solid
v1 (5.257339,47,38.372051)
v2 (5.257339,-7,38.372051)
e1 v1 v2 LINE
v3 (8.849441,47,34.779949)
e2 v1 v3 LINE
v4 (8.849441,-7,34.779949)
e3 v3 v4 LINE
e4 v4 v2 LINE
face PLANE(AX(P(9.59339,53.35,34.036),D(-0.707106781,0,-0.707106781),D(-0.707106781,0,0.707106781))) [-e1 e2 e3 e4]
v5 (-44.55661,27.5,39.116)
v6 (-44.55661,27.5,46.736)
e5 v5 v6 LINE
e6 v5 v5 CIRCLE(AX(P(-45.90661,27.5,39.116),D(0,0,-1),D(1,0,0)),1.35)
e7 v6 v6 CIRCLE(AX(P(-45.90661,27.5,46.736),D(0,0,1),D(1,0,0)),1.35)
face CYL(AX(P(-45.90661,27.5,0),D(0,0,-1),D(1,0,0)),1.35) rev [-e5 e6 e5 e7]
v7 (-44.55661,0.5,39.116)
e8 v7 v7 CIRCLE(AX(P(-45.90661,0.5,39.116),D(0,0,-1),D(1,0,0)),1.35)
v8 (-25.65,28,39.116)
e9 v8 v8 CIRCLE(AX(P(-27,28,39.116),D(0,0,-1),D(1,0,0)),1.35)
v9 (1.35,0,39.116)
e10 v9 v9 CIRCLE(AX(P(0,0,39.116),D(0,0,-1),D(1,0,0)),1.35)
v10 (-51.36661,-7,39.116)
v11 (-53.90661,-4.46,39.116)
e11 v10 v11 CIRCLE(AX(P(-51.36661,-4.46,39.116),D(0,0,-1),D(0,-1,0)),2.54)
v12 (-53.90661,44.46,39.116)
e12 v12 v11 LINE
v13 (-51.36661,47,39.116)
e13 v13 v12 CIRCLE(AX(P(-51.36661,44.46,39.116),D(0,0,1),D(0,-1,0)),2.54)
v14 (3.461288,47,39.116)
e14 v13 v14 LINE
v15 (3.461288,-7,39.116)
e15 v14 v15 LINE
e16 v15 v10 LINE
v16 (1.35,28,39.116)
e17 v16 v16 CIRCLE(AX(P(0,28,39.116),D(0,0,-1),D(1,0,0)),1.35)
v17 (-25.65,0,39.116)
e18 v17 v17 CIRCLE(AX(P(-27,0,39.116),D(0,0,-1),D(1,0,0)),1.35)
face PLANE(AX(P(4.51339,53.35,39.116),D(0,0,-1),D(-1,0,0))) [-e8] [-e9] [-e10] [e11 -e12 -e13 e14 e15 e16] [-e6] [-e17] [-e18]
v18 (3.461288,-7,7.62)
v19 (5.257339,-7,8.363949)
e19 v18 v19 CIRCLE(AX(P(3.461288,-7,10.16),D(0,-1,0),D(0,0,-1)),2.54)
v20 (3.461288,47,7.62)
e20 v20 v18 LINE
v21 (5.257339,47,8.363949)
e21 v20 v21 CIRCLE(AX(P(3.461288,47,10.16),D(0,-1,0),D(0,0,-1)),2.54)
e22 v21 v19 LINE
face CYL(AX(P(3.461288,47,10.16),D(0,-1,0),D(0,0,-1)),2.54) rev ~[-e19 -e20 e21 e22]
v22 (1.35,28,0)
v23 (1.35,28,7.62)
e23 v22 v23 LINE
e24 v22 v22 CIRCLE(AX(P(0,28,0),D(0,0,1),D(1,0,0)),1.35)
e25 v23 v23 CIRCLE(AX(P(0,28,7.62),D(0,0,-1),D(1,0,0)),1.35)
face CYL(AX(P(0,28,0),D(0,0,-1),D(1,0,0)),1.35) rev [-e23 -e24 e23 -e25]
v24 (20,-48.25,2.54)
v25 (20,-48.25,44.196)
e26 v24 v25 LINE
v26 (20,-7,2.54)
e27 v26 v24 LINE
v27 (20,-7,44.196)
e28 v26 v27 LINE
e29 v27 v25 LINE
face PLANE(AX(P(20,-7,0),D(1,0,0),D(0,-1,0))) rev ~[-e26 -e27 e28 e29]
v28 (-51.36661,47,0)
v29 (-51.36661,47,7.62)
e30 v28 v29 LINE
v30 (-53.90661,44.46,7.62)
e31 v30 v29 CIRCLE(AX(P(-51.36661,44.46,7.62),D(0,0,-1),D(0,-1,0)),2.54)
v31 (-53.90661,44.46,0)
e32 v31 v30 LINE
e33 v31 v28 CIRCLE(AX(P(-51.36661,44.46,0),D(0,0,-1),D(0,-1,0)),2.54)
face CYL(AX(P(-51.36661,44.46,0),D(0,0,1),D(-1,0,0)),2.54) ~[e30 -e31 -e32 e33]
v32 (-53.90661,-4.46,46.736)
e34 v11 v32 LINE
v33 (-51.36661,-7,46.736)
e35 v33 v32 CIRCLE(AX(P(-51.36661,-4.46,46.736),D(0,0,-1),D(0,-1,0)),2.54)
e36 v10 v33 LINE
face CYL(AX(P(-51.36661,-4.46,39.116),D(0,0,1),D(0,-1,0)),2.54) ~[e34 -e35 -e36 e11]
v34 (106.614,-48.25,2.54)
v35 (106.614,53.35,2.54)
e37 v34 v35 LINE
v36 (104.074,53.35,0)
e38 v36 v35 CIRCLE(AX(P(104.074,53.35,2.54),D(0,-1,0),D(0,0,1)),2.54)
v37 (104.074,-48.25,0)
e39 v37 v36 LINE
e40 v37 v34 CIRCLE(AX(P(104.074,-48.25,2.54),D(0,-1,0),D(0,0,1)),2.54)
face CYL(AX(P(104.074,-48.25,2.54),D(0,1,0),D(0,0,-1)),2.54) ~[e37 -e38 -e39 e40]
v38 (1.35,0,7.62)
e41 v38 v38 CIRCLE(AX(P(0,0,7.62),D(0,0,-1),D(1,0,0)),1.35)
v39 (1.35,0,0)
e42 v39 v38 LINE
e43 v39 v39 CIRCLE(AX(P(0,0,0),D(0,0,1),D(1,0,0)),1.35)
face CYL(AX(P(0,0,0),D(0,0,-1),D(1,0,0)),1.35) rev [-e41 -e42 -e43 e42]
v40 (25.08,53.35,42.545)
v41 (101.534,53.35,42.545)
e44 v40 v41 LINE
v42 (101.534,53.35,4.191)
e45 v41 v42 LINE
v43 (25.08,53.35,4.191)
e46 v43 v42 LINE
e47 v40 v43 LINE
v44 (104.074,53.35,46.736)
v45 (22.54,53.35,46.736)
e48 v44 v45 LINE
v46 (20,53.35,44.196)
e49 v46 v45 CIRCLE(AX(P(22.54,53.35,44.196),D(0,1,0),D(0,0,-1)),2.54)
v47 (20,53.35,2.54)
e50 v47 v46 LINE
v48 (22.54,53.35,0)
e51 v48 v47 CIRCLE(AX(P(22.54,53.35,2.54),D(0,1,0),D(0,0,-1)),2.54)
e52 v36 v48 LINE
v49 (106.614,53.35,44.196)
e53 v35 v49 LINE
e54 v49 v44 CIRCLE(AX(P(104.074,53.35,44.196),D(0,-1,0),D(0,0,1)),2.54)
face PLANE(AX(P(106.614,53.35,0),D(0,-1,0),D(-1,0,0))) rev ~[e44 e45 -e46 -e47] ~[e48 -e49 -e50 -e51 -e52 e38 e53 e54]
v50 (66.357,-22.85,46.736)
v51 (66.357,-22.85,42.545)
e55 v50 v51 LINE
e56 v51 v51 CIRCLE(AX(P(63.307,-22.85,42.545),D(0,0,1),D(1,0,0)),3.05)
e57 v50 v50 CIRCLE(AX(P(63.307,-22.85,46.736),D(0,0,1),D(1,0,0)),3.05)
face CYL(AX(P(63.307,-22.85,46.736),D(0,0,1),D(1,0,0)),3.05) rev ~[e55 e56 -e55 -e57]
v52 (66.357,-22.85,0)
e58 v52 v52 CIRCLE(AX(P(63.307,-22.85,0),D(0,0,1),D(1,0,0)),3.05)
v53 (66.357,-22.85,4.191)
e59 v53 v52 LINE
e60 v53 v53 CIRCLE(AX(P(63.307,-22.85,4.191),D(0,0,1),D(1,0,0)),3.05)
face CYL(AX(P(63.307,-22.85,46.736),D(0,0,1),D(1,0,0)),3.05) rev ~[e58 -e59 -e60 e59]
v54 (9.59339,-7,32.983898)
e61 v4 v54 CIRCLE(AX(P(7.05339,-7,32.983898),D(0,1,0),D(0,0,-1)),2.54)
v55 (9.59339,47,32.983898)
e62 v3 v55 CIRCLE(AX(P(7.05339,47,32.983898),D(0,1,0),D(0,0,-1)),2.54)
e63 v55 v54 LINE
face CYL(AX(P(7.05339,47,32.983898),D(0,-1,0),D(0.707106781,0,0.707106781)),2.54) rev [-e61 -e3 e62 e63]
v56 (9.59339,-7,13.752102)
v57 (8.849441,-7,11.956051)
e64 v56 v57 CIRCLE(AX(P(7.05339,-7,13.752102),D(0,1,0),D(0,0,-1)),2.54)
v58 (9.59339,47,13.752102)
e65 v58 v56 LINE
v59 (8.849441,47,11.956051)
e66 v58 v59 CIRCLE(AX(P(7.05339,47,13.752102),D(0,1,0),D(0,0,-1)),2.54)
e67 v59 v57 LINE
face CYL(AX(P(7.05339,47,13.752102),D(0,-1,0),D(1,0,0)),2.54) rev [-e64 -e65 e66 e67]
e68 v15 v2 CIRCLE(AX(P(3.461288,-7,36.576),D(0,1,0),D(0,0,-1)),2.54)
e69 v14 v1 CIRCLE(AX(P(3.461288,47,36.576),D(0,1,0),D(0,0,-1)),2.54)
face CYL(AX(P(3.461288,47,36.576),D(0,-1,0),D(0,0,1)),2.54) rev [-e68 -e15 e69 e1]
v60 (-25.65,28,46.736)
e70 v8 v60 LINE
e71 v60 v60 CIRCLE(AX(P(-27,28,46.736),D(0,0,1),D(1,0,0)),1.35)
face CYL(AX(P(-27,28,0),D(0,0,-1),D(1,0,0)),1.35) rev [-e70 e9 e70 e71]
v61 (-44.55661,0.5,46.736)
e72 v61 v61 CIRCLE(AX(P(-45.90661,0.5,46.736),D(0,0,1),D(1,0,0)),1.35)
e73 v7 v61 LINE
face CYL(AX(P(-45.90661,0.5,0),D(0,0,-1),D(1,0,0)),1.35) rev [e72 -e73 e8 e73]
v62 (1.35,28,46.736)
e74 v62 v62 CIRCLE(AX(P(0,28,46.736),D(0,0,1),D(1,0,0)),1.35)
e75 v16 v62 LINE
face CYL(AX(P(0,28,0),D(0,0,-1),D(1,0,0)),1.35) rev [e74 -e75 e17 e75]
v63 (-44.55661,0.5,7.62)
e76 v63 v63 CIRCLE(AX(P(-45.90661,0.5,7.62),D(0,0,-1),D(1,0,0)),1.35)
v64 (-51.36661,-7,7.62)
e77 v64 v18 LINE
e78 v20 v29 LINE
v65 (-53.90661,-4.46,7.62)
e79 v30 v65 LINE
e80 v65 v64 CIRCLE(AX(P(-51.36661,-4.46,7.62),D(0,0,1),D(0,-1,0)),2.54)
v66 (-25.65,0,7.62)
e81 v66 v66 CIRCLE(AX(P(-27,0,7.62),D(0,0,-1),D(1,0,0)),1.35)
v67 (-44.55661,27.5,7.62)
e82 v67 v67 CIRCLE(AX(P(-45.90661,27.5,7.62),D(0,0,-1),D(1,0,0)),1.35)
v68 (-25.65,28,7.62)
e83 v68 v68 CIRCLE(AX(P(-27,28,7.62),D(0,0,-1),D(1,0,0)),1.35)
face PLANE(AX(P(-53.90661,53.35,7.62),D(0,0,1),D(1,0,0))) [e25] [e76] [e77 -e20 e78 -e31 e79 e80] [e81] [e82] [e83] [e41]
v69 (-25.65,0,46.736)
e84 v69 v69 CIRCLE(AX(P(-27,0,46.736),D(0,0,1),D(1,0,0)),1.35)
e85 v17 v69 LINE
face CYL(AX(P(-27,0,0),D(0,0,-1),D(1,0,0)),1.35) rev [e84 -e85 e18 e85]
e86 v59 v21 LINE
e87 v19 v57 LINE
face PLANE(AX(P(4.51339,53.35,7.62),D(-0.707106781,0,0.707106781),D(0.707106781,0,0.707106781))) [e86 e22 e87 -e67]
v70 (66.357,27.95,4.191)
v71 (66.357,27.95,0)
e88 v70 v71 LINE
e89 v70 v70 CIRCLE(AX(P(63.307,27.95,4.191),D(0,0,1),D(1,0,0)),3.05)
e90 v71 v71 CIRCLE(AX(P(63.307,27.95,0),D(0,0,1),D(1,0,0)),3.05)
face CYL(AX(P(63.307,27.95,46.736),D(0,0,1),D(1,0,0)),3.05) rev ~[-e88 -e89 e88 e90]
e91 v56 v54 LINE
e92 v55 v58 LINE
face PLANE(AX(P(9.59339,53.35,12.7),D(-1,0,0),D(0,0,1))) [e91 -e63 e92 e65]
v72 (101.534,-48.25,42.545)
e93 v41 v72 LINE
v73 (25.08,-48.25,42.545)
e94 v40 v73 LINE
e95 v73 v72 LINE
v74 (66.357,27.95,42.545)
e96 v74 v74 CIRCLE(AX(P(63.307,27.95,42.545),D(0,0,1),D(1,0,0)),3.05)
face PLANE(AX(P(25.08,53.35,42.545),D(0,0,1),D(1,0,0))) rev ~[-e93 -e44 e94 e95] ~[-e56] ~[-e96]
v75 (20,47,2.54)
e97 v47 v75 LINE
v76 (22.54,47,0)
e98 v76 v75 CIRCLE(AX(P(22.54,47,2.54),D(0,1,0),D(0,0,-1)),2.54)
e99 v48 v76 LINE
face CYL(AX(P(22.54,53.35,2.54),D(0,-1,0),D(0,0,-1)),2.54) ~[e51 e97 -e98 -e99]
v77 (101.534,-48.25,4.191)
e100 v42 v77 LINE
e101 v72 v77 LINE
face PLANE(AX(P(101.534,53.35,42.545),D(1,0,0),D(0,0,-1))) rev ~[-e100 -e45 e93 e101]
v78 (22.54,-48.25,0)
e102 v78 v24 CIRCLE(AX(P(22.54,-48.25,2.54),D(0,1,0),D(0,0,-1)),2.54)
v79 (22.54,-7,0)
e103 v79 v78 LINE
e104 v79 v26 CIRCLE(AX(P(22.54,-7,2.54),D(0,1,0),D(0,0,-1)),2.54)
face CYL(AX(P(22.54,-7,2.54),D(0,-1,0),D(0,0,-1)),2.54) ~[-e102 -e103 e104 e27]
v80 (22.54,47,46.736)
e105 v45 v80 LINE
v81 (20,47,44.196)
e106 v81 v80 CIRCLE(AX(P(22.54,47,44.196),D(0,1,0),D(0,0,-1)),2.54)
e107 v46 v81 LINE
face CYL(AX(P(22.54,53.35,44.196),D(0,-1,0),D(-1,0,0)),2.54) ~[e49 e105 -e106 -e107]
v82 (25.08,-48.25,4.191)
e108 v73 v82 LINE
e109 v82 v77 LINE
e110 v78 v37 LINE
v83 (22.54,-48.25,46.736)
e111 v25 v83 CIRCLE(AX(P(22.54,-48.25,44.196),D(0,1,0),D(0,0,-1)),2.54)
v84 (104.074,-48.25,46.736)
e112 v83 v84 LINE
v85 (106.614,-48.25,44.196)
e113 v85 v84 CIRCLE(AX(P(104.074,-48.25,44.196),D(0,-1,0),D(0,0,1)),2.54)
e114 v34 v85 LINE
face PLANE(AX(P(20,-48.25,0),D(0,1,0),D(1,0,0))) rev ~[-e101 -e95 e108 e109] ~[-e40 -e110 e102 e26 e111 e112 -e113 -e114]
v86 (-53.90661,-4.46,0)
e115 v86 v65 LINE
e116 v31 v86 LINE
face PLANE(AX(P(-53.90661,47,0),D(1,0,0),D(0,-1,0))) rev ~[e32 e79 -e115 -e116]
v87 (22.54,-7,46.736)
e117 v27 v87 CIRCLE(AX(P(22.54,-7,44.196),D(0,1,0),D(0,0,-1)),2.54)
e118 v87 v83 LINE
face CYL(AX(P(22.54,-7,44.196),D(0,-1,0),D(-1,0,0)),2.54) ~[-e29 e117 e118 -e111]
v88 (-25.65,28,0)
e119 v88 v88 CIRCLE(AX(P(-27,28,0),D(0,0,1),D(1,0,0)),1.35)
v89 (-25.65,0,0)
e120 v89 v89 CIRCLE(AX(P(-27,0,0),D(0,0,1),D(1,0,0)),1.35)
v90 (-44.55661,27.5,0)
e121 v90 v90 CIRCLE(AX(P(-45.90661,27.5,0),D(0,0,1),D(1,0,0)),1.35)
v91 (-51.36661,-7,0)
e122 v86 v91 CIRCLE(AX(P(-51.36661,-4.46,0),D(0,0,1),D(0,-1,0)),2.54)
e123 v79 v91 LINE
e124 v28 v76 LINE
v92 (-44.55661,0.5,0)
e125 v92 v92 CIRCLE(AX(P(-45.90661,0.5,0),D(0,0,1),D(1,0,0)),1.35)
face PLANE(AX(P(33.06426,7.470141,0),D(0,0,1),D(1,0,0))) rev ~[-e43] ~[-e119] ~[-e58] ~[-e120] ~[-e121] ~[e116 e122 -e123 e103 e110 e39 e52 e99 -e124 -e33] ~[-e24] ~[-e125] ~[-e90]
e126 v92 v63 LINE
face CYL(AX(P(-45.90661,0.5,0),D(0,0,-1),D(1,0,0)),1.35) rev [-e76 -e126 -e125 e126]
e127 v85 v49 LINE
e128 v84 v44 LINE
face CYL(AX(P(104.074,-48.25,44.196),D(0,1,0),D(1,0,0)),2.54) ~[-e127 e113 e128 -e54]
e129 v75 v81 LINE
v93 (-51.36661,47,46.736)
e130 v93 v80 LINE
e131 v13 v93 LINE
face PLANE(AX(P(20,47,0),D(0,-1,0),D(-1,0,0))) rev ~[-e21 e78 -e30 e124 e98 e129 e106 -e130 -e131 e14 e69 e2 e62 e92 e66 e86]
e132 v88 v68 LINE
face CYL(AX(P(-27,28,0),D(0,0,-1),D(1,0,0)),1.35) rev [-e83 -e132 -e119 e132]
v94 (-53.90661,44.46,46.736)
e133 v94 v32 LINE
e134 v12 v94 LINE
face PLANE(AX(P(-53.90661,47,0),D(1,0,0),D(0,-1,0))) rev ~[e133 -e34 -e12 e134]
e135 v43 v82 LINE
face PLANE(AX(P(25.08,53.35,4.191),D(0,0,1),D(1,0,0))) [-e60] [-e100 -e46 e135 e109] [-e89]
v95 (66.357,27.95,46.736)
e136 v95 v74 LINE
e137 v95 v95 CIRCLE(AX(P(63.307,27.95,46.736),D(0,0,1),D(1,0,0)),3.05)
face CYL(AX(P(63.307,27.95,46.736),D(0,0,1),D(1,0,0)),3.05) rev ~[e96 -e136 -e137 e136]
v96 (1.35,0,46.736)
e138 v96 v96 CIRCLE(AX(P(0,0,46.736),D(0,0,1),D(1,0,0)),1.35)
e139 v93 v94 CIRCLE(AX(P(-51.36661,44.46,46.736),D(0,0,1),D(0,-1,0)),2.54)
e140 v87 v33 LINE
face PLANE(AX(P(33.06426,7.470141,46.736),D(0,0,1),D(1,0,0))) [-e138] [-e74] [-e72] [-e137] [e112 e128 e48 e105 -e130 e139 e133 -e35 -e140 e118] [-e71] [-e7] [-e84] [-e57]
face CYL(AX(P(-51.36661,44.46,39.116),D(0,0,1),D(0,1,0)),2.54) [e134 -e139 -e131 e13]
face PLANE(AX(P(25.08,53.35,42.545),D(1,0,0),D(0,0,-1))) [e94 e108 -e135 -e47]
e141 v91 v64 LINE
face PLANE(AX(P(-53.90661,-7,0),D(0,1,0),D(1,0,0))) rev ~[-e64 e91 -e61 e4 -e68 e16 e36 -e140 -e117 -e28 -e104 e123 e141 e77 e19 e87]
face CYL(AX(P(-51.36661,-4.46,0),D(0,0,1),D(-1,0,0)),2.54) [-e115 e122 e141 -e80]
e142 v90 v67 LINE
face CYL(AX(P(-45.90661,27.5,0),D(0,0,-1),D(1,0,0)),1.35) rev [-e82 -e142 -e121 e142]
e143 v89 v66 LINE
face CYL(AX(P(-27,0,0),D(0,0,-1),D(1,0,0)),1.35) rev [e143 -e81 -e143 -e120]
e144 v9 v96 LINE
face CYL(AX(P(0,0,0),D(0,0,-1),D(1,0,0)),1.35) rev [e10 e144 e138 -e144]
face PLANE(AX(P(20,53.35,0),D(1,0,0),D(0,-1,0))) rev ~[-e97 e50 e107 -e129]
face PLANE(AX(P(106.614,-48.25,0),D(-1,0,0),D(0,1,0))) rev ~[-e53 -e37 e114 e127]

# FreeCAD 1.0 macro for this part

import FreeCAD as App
import Part
import Sketcher
from FreeCAD import Vector
Q = App.Units.Quantity


def edges_at(feature, points):
    """Names of the edges that pass closest to the given points."""
    edges = feature.Shape.Edges
    near = lambda p: min(range(len(edges)), key=lambda i: edges[i].distToShape(Part.Vertex(*p))[0])
    return sorted({f"Edge{near(p) + 1}" for p in points})

doc = App.newDocument("Part")
body = doc.addObject("PartDesign::Body", "Body")

# Sketch on XY plane
sketch1 = body.newObject("Sketcher::SketchObject", "Sketch")
sketch1.AttachmentSupport = (doc.getObject("XY_Plane"), [""])
sketch1.MapMode = "FlatFace"
sketch1.addGeometry([
    Part.LineSegment(Vector(-53.90661, 47, 0), Vector(-53.90661, -7, 0)),  # 0
    Part.LineSegment(Vector(-53.90661, -7, 0), Vector(20, -7, 0)),  # 1
    Part.LineSegment(Vector(20, -7, 0), Vector(20, -48.25, 0)),  # 2
    Part.LineSegment(Vector(20, -48.25, 0), Vector(106.614, -48.25, 0)),  # 3
    Part.LineSegment(Vector(106.614, -48.25, 0), Vector(106.614, 53.35, 0)),  # 4
    Part.LineSegment(Vector(106.614, 53.35, 0), Vector(20, 53.35, 0)),  # 5
    Part.LineSegment(Vector(20, 53.35, 0), Vector(20, 47, 0)),  # 6
    Part.LineSegment(Vector(20, 47, 0), Vector(-53.90661, 47, 0)),  # 7
    Part.Circle(Vector(-45.90661, 0.5, 0), Vector(0, 0, 1), 1.35),  # 8
    Part.Circle(Vector(-27, 0, 0), Vector(0, 0, 1), 1.35),  # 9
    Part.Circle(Vector(0, 0, 0), Vector(0, 0, 1), 1.35),  # 10
    Part.Circle(Vector(-45.90661, 27.5, 0), Vector(0, 0, 1), 1.35),  # 11
    Part.Circle(Vector(-27, 28, 0), Vector(0, 0, 1), 1.35),  # 12
    Part.Circle(Vector(0, 28, 0), Vector(0, 0, 1), 1.35),  # 13
], False)
sketch1.addConstraint([
    Sketcher.Constraint("Coincident", 0, 2, 1, 1),
    Sketcher.Constraint("Coincident", 1, 2, 2, 1),
    Sketcher.Constraint("Coincident", 2, 2, 3, 1),
    Sketcher.Constraint("Coincident", 3, 2, 4, 1),
    Sketcher.Constraint("Coincident", 4, 2, 5, 1),
    Sketcher.Constraint("Coincident", 5, 2, 6, 1),
    Sketcher.Constraint("Coincident", 6, 2, 7, 1),
    Sketcher.Constraint("Coincident", 7, 2, 0, 1),
    Sketcher.Constraint("Vertical", 0),
    Sketcher.Constraint("Horizontal", 1),
    Sketcher.Constraint("Vertical", 2),
    Sketcher.Constraint("Horizontal", 3),
    Sketcher.Constraint("Vertical", 4),
    Sketcher.Constraint("Horizontal", 5),
    Sketcher.Constraint("Vertical", 6),
    Sketcher.Constraint("Horizontal", 7),
    Sketcher.Constraint("Coincident", 10, 3, -1, 1),
    Sketcher.Constraint("Equal", 8, 9),
    Sketcher.Constraint("Equal", 9, 10),
    Sketcher.Constraint("Equal", 10, 11),
    Sketcher.Constraint("Equal", 11, 12),
    Sketcher.Constraint("Equal", 12, 13),
    Sketcher.Constraint("PointOnObject", 9, 3, -1),
    Sketcher.Constraint("PointOnObject", 13, 3, -2),
    Sketcher.Constraint("Horizontal", 12, 3, 13, 3),
    Sketcher.Constraint("Vertical", 8, 3, 11, 3),
    Sketcher.Constraint("Vertical", 9, 3, 12, 3),
    Sketcher.Constraint("Vertical", 2, 2, 5, 2),
    Sketcher.Constraint("DistanceY", 4, 1, 4, 2, Q("4 in")),
    Sketcher.Constraint("DistanceX", 3, 1, 3, 2, Q("3.41 in")),
    Sketcher.Constraint("DistanceY", 6, 2, 6, 1, Q("0.25 in")),
    Sketcher.Constraint("Diameter", 8, 2.7),
    Sketcher.Constraint("DistanceY", 0, 2, 0, 1, 54.0),
    Sketcher.Constraint("DistanceX", 1, 1, 1, 2, 73.90661),
    Sketcher.Constraint("DistanceY", -1, 1, 8, 3, 0.5),
    Sketcher.Constraint("DistanceX", 9, 3, -1, 1, 27.0),
    Sketcher.Constraint("DistanceY", -1, 1, 11, 3, 27.5),
    Sketcher.Constraint("DistanceY", -1, 1, 12, 3, 28.0),
    Sketcher.Constraint("DistanceY", 0, 2, -1, 1, 7.0),
    Sketcher.Constraint("DistanceX", -1, 1, 1, 2, 20.0),
    Sketcher.Constraint("DistanceX", 0, 2, 8, 3, 8.0),
])
pad1 = body.newObject("PartDesign::Pad", "Pad")
pad1.Profile = sketch1
pad1.Length = Q("1.84 in")

# Sketch on XZ plane
sketch2 = body.newObject("Sketcher::SketchObject", "Sketch001")
sketch2.AttachmentSupport = (doc.getObject("XZ_Plane"), [""])
sketch2.MapMode = "FlatFace"
sketch2.AttachmentOffset = App.Placement(Vector(0, 0, -53.35), App.Rotation())
sketch2.addGeometry([
    Part.LineSegment(Vector(4.51339, 7.62, 0), Vector(-53.90661, 7.62, 0)),  # 0
    Part.LineSegment(Vector(-53.90661, 7.62, 0), Vector(-53.90661, 39.116, 0)),  # 1
    Part.LineSegment(Vector(-53.90661, 39.116, 0), Vector(4.51339, 39.116, 0)),  # 2
    Part.LineSegment(Vector(4.51339, 39.116, 0), Vector(9.59339, 34.036, 0)),  # 3
    Part.LineSegment(Vector(9.59339, 34.036, 0), Vector(9.59339, 12.7, 0)),  # 4
    Part.LineSegment(Vector(9.59339, 12.7, 0), Vector(4.51339, 7.62, 0)),  # 5
    Part.LineSegment(Vector(25.08, 4.191, 0), Vector(25.08, 42.545, 0)),  # 6
    Part.LineSegment(Vector(25.08, 42.545, 0), Vector(101.534, 42.545, 0)),  # 7
    Part.LineSegment(Vector(101.534, 42.545, 0), Vector(101.534, 4.191, 0)),  # 8
    Part.LineSegment(Vector(101.534, 4.191, 0), Vector(25.08, 4.191, 0)),  # 9
], False)
sketch2.addConstraint([
    Sketcher.Constraint("Coincident", 0, 2, 1, 1),
    Sketcher.Constraint("Coincident", 1, 2, 2, 1),
    Sketcher.Constraint("Coincident", 2, 2, 3, 1),
    Sketcher.Constraint("Coincident", 3, 2, 4, 1),
    Sketcher.Constraint("Coincident", 4, 2, 5, 1),
    Sketcher.Constraint("Coincident", 5, 2, 0, 1),
    Sketcher.Constraint("Coincident", 6, 2, 7, 1),
    Sketcher.Constraint("Coincident", 7, 2, 8, 1),
    Sketcher.Constraint("Coincident", 8, 2, 9, 1),
    Sketcher.Constraint("Coincident", 9, 2, 6, 1),
    Sketcher.Constraint("Horizontal", 0),
    Sketcher.Constraint("Vertical", 1),
    Sketcher.Constraint("Horizontal", 2),
    Sketcher.Constraint("Vertical", 4),
    Sketcher.Constraint("Vertical", 6),
    Sketcher.Constraint("Horizontal", 7),
    Sketcher.Constraint("Vertical", 8),
    Sketcher.Constraint("Horizontal", 9),
    Sketcher.Constraint("Perpendicular", 3, 5),
    Sketcher.Constraint("Vertical", 2, 2, 5, 2),
    Sketcher.Constraint("Equal", 3, 5),
    Sketcher.Constraint("DistanceX", 0, 2, 0, 1, Q("2.3 in")),
    Sketcher.Constraint("DistanceX", 7, 1, 7, 2, Q("3.01 in")),
    Sketcher.Constraint("DistanceY", 1, 1, 1, 2, Q("1.24 in")),
    Sketcher.Constraint("DistanceY", 4, 2, 4, 1, Q("0.84 in")),
    Sketcher.Constraint("DistanceY", 6, 1, 6, 2, Q("1.51 in")),
    Sketcher.Constraint("DistanceY", -1, 1, 0, 2, Q("0.3 in")),
    Sketcher.Constraint("DistanceY", -1, 1, 6, 2, Q("1.675 in")),
    Sketcher.Constraint("DistanceX", -1, 1, 6, 2, 25.08),
    Sketcher.Constraint("DistanceX", 0, 2, -1, 1, 53.90661),
])
pocket1 = body.newObject("PartDesign::Pocket", "Pocket")
pocket1.Profile = sketch2
pocket1.Length = Q("5.4 in")
pocket1.Reversed = True
doc.recompute()

fillet = body.newObject("PartDesign::Fillet", "Fillet")
fillet.Base = (pocket1, edges_at(pocket1, [
    (20, 50.175, 0),
    (-53.907, -7, 42.926),
    (-53.907, 47, 42.926),
    (20, -27.625, 46.736),
    (106.614, 2.55, 46.736),
    (-53.907, -7, 3.81),
    (-53.907, 47, 3.81),
    (4.513, 20, 7.62),
    (9.593, 20, 12.7),
    (9.593, 20, 34.036),
    (4.513, 20, 39.116),
    (106.614, 2.55, 0),
    (20, 50.175, 46.736),
    (20, -27.625, 0),
]))
fillet.Radius = Q("0.1 in")

# Sketch on XY plane
sketch3 = body.newObject("Sketcher::SketchObject", "Sketch002")
sketch3.AttachmentSupport = (doc.getObject("XY_Plane"), [""])
sketch3.MapMode = "FlatFace"
sketch3.AttachmentOffset = App.Placement(Vector(0, 0, 1.84 * 25.4), App.Rotation())
sketch3.addGeometry([
    Part.Circle(Vector(63.307, 27.95, 0), Vector(0, 0, 1), 3.05),
    Part.Circle(Vector(63.307, -22.85, 0), Vector(0, 0, 1), 3.05),
], False)
sketch3.addConstraint([
    Sketcher.Constraint("Equal", 0, 1),
    Sketcher.Constraint("Vertical", 0, 3, 1, 3),
    Sketcher.Constraint("DistanceY", 1, 3, 0, 3, Q("2 in")),
    Sketcher.Constraint("Diameter", 0, 6.1),
    Sketcher.Constraint("DistanceX", -1, 1, 0, 3, 63.307),
    Sketcher.Constraint("DistanceY", -1, 1, 0, 3, 27.95),
])
pocket2 = body.newObject("PartDesign::Pocket", "Pocket001")
pocket2.Profile = sketch3
pocket2.Length = Q("2.61 in")

doc.recompute()
